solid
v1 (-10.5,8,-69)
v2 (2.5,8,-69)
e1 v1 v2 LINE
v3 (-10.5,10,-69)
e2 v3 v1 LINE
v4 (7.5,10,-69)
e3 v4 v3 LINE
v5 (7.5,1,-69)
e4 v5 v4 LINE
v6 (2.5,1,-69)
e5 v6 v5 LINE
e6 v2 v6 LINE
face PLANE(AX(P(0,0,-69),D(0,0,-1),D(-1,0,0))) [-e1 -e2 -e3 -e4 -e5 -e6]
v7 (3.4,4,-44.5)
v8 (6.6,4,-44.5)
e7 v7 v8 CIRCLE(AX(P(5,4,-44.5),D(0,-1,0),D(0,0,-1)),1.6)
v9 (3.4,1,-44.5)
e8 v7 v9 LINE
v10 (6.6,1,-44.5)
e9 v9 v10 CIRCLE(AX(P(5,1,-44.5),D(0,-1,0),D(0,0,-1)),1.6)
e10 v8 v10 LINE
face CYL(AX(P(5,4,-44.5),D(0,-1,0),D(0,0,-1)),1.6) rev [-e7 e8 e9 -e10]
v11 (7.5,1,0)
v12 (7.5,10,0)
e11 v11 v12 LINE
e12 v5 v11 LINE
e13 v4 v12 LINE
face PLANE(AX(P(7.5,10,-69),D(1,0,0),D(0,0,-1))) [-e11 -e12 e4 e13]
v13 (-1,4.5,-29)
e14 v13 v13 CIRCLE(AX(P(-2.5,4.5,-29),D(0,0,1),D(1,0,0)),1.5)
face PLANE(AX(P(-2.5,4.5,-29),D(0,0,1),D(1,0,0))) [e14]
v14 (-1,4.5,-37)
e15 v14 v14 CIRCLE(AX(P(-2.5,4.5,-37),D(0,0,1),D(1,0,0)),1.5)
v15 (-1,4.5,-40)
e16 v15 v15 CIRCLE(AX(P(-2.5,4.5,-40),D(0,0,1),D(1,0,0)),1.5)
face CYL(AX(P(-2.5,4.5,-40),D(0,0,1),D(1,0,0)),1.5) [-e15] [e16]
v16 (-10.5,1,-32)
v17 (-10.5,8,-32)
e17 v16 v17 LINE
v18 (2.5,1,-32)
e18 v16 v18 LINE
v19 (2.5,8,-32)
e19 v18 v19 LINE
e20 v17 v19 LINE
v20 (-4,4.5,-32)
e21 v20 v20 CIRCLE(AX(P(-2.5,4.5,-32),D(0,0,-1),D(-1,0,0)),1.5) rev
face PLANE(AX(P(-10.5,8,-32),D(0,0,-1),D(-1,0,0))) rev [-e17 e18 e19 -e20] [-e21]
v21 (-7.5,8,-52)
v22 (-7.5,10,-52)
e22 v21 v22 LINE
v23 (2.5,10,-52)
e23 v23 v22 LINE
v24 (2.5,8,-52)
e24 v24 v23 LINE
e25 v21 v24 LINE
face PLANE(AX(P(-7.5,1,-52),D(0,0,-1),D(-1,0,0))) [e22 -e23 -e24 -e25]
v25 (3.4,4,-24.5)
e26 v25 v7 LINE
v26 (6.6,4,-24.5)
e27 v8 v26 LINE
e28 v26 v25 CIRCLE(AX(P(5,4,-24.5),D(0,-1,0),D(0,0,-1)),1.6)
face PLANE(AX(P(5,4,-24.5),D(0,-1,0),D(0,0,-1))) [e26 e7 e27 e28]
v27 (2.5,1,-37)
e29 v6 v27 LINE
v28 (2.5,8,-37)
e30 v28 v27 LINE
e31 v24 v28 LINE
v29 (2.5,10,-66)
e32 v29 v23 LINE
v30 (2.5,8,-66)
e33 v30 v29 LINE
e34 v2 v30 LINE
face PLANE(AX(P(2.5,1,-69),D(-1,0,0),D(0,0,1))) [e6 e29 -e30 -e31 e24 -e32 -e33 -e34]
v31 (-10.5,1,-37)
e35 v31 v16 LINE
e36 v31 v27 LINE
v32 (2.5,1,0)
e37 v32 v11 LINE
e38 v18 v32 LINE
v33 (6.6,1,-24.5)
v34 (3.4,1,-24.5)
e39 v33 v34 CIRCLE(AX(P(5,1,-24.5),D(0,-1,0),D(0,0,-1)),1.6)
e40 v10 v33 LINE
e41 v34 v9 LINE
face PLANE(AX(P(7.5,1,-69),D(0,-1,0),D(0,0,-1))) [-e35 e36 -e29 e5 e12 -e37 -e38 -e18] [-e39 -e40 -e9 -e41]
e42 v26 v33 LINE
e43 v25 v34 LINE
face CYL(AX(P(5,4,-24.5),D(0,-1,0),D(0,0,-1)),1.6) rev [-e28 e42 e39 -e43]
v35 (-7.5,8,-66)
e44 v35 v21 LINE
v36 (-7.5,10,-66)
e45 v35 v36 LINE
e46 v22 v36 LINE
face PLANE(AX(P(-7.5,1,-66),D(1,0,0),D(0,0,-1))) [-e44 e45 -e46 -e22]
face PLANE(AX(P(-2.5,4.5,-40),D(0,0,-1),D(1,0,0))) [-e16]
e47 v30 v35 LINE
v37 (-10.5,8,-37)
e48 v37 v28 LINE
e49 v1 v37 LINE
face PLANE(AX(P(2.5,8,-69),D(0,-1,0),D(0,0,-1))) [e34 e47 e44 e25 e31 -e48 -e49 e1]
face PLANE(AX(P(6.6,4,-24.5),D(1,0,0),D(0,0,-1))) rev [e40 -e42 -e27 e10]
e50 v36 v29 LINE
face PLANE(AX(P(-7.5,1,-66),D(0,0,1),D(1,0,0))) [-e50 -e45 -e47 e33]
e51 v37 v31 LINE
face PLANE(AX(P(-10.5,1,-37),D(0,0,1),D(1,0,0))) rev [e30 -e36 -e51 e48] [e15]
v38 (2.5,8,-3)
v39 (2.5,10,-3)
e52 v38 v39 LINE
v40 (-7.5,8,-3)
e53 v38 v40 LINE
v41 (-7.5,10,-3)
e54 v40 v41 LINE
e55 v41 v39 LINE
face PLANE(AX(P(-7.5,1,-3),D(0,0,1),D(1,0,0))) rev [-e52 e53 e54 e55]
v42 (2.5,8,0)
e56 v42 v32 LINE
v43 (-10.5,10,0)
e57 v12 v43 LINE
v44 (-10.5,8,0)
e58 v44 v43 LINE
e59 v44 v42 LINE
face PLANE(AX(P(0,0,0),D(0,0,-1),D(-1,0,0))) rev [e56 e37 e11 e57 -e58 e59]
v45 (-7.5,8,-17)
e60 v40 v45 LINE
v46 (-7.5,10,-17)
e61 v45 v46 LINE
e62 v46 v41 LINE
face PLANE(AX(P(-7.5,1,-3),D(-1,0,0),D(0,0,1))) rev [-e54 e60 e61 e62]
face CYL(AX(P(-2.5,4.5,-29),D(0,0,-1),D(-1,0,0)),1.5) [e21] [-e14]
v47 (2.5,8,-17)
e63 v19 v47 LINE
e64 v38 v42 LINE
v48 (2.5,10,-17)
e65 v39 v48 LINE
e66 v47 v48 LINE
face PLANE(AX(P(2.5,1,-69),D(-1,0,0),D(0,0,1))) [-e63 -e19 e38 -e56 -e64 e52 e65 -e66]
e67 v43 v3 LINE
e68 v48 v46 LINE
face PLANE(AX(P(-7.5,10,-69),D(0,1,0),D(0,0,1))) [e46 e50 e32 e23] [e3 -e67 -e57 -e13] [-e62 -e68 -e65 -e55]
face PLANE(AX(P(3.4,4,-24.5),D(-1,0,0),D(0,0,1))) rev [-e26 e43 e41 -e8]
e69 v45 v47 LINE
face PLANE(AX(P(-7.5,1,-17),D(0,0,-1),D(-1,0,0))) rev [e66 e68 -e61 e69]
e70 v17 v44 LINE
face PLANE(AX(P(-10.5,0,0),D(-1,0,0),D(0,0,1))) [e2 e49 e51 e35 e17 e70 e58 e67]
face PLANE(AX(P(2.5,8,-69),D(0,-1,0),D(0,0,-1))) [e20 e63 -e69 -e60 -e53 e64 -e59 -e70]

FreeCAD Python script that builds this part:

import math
import FreeCAD as App
import Part
import Sketcher
Q = App.Units.Quantity

doc = App.newDocument("Part")
params = doc.addObject("Spreadsheet::Sheet", "Params")
for row, (alias, value) in enumerate([
    ("sketch1_width", "5 mm"),
    ("sketch1_width2", "15 mm"),
    ("sketch1_height", "7 mm"),
    ("sketch1_height2", "9 mm"),
    ("pad1_length", "69 mm"),
    ("sketch2_width", "2 mm"),
    ("sketch2_height", "69 mm"),
    ("pad2_length", "3 mm"),
    ("sketch3_width", "7 mm"),
    ("sketch3_height", "5 mm"),
    ("pad3_length", "13 mm"),
    ("sketch4_diameter", "3 mm"),
    ("pad4_length", "3 mm"),
    ("sketch5_width", "10 mm"),
    ("sketch5_height", "14 mm"),
    ("sketch6_radius", "1.6 mm"),
    ("sketch6_height", "20 mm"),
    ("pocket2_length", "3 mm"),
], start=1):
    params.set(f"A{row}", alias)
    params.set(f"B{row}", "=" + value)
    params.setAlias(f"B{row}", alias)

body = doc.addObject("PartDesign::Body", "Body")

# Sketch on XY plane
sketch1 = body.newObject("Sketcher::SketchObject", "Sketch")
sketch1.AttachmentSupport = (doc.getObject("XY_Plane"), [""])
sketch1.MapMode = "FlatFace"
sketch1.addGeometry([
    Part.LineSegment(App.Vector(2.5, 8, 0), App.Vector(2.5, 1, 0)),  # 0
    Part.LineSegment(App.Vector(2.5, 1, 0), App.Vector(7.5, 1, 0)),  # 1
    Part.LineSegment(App.Vector(7.5, 1, 0), App.Vector(7.5, 10, 0)),  # 2
    Part.LineSegment(App.Vector(7.5, 10, 0), App.Vector(-7.5, 10, 0)),  # 3
    Part.LineSegment(App.Vector(-7.5, 10, 0), App.Vector(-7.5, 8, 0)),  # 4
    Part.LineSegment(App.Vector(-7.5, 8, 0), App.Vector(2.5, 8, 0)),  # 5
], False)
sketch1.addConstraint([
    Sketcher.Constraint("Coincident", 0, 2, 1, 1),
    Sketcher.Constraint("Coincident", 1, 2, 2, 1),
    Sketcher.Constraint("Coincident", 2, 2, 3, 1),
    Sketcher.Constraint("Coincident", 3, 2, 4, 1),
    Sketcher.Constraint("Coincident", 4, 2, 5, 1),
    Sketcher.Constraint("Coincident", 5, 2, 0, 1),
    Sketcher.Constraint("Vertical", 0),
    Sketcher.Constraint("Horizontal", 1),
    Sketcher.Constraint("Vertical", 2),
    Sketcher.Constraint("Horizontal", 3),
    Sketcher.Constraint("Vertical", 4),
    Sketcher.Constraint("Horizontal", 5),
    Sketcher.Constraint("DistanceX", 1, 1, 1, 2, Q("5 mm")),
    Sketcher.Constraint("DistanceX", 3, 2, 3, 1, Q("15 mm")),
    Sketcher.Constraint("DistanceY", 0, 2, 0, 1, Q("7 mm")),
    Sketcher.Constraint("DistanceY", 2, 1, 2, 2, Q("9 mm")),
    Sketcher.Constraint("DistanceY", -1, 1, 0, 2, Q("1 mm")),
    Sketcher.Constraint("DistanceX", -1, 1, 0, 2, Q("2.5 mm")),
])
sketch1.setExpression("Constraints[12]", "Params.sketch1_width")
sketch1.setExpression("Constraints[13]", "Params.sketch1_width2")
sketch1.setExpression("Constraints[14]", "Params.sketch1_height")
sketch1.setExpression("Constraints[15]", "Params.sketch1_height2")
pad1 = body.newObject("PartDesign::Pad", "Pad")
pad1.Profile = sketch1
pad1.setExpression("Length", "Params.pad1_length")
pad1.Reversed = True

# Sketch on YZ plane
sketch2 = body.newObject("Sketcher::SketchObject", "Sketch001")
sketch2.AttachmentSupport = (doc.getObject("YZ_Plane"), [""])
sketch2.MapMode = "FlatFace"
sketch2.AttachmentOffset = App.Placement(App.Vector(0, 0, -7.5), App.Rotation())
sketch2.addGeometry([
    Part.LineSegment(App.Vector(10, -69, 0), App.Vector(8, -69, 0)),
    Part.LineSegment(App.Vector(8, -69, 0), App.Vector(8, 0, 0)),
    Part.LineSegment(App.Vector(8, 0, 0), App.Vector(10, 0, 0)),
    Part.LineSegment(App.Vector(10, 0, 0), App.Vector(10, -69, 0)),
], False)
sketch2.addConstraint([
    Sketcher.Constraint("Coincident", 0, 2, 1, 1),
    Sketcher.Constraint("Coincident", 1, 2, 2, 1),
    Sketcher.Constraint("Coincident", 2, 2, 3, 1),
    Sketcher.Constraint("Coincident", 3, 2, 0, 1),
    Sketcher.Constraint("Horizontal", 0),
    Sketcher.Constraint("Vertical", 1),
    Sketcher.Constraint("Horizontal", 2),
    Sketcher.Constraint("Vertical", 3),
    Sketcher.Constraint("PointOnObject", 1, 2, -1),
    Sketcher.Constraint("DistanceX", 0, 2, 0, 1, Q("2 mm")),
    Sketcher.Constraint("DistanceY", 1, 1, 1, 2, Q("69 mm")),
    Sketcher.Constraint("DistanceX", -1, 1, 0, 2, Q("8 mm")),
])
sketch2.setExpression("Constraints[9]", "Params.sketch2_width")
sketch2.setExpression("Constraints[10]", "Params.sketch2_height")
pad2 = body.newObject("PartDesign::Pad", "Pad001")
pad2.Profile = sketch2
pad2.setExpression("Length", "Params.pad2_length")
pad2.Reversed = True

# Sketch on YZ plane
sketch3 = body.newObject("Sketcher::SketchObject", "Sketch002")
sketch3.AttachmentSupport = (doc.getObject("YZ_Plane"), [""])
sketch3.MapMode = "FlatFace"
sketch3.AttachmentOffset = App.Placement(App.Vector(0, 0, 2.5), App.Rotation())
sketch3.addGeometry([
    Part.LineSegment(App.Vector(8, -37, 0), App.Vector(1, -37, 0)),
    Part.LineSegment(App.Vector(1, -37, 0), App.Vector(1, -32, 0)),
    Part.LineSegment(App.Vector(1, -32, 0), App.Vector(8, -32, 0)),
    Part.LineSegment(App.Vector(8, -32, 0), App.Vector(8, -37, 0)),
], False)
sketch3.addConstraint([
    Sketcher.Constraint("Coincident", 0, 2, 1, 1),
    Sketcher.Constraint("Coincident", 1, 2, 2, 1),
    Sketcher.Constraint("Coincident", 2, 2, 3, 1),
    Sketcher.Constraint("Coincident", 3, 2, 0, 1),
    Sketcher.Constraint("Horizontal", 0),
    Sketcher.Constraint("Vertical", 1),
    Sketcher.Constraint("Horizontal", 2),
    Sketcher.Constraint("Vertical", 3),
    Sketcher.Constraint("DistanceX", 0, 2, 0, 1, Q("7 mm")),
    Sketcher.Constraint("DistanceY", 1, 1, 1, 2, Q("5 mm")),
    Sketcher.Constraint("DistanceX", -1, 1, 0, 2, Q("1 mm")),
    Sketcher.Constraint("DistanceY", 0, 2, -1, 1, Q("37 mm")),
])
sketch3.setExpression("Constraints[8]", "Params.sketch3_width")
sketch3.setExpression("Constraints[9]", "Params.sketch3_height")
pad3 = body.newObject("PartDesign::Pad", "Pad002")
pad3.Profile = sketch3
pad3.setExpression("Length", "Params.pad3_length")
pad3.Reversed = True

# Sketch on XY plane
sketch4 = body.newObject("Sketcher::SketchObject", "Sketch003")
sketch4.AttachmentSupport = (doc.getObject("XY_Plane"), [""])
sketch4.MapMode = "FlatFace"
sketch4.AttachmentOffset = App.Placement(App.Vector(0, 0, -32), App.Rotation())
sketch4.addGeometry(Part.Circle(App.Vector(-2.5, 4.5, 0), App.Vector(0, 0, 1), 1.5), False)
sketch4.addConstraint([
    Sketcher.Constraint("Diameter", 0, Q("3 mm")),
    Sketcher.Constraint("DistanceX", 0, 3, -1, 1, Q("2.5 mm")),
    Sketcher.Constraint("DistanceY", -1, 1, 0, 3, Q("4.5 mm")),
])
sketch4.setExpression("Constraints[0]", "Params.sketch4_diameter")
pad4 = body.newObject("PartDesign::Pad", "Pad003")
pad4.Profile = sketch4
pad4.setExpression("Length", "Params.pad4_length")

# Sketch on XZ plane
sketch5 = body.newObject("Sketcher::SketchObject", "Sketch004")
sketch5.AttachmentSupport = (doc.getObject("XZ_Plane"), [""])
sketch5.MapMode = "FlatFace"
sketch5.AttachmentOffset = App.Placement(App.Vector(0, 0, -10), App.Rotation())
sketch5.addGeometry([
    Part.LineSegment(App.Vector(-7.5, -17, 0), App.Vector(-7.5, -3, 0)),
    Part.LineSegment(App.Vector(-7.5, -3, 0), App.Vector(2.5, -3, 0)),
    Part.LineSegment(App.Vector(2.5, -3, 0), App.Vector(2.5, -17, 0)),
    Part.LineSegment(App.Vector(2.5, -17, 0), App.Vector(-7.5, -17, 0)),
], False)
sketch5.addConstraint([
    Sketcher.Constraint("Coincident", 0, 2, 1, 1),
    Sketcher.Constraint("Coincident", 1, 2, 2, 1),
    Sketcher.Constraint("Coincident", 2, 2, 3, 1),
    Sketcher.Constraint("Coincident", 3, 2, 0, 1),
    Sketcher.Constraint("Vertical", 0),
    Sketcher.Constraint("Horizontal", 1),
    Sketcher.Constraint("Vertical", 2),
    Sketcher.Constraint("Horizontal", 3),
    Sketcher.Constraint("DistanceX", 1, 1, 1, 2, Q("10 mm")),
    Sketcher.Constraint("DistanceY", 0, 1, 0, 2, Q("14 mm")),
    Sketcher.Constraint("DistanceY", 0, 2, -1, 1, Q("3 mm")),
    Sketcher.Constraint("DistanceX", 0, 2, -1, 1, Q("7.5 mm")),
])
sketch5.setExpression("Constraints[8]", "Params.sketch5_width")
sketch5.setExpression("Constraints[9]", "Params.sketch5_height")
pocket1 = body.newObject("PartDesign::Pocket", "Pocket")
pocket1.Profile = sketch5
pocket1.Type = "ThroughAll"
pocket1.Reversed = True
doc.recompute()

datumplane = body.newObject("PartDesign::Plane", "DatumPlane")
datumplane.AttachmentSupport = (doc.getObject("XY_Plane"), [""])
datumplane.MapMode = "FlatFace"
datumplane.AttachmentOffset = App.Placement(App.Vector(0, 0, -34.5), App.Rotation())
mirrored = body.newObject("PartDesign::Mirrored", "Mirrored")
mirrored.Originals = [pad4, pocket1]
mirrored.MirrorPlane = (datumplane, [""])
body.Tip = mirrored

# Sketch on XZ plane
sketch6 = body.newObject("Sketcher::SketchObject", "Sketch005")
sketch6.AttachmentSupport = (doc.getObject("XZ_Plane"), [""])
sketch6.MapMode = "FlatFace"
sketch6.AttachmentOffset = App.Placement(App.Vector(0, 0, -1), App.Rotation())
sketch6.addGeometry([
    Part.LineSegment(App.Vector(6.6, -44.5, 0), App.Vector(6.6, -24.5, 0)),
    Part.ArcOfCircle(Part.Circle(App.Vector(5, -24.5, 0), App.Vector(0, 0, 1), 1.6), math.radians(0), math.radians(180)),
    Part.LineSegment(App.Vector(3.4, -24.5, 0), App.Vector(3.4, -44.5, 0)),
    Part.ArcOfCircle(Part.Circle(App.Vector(5, -44.5, 0), App.Vector(0, 0, 1), 1.6), math.radians(180), math.radians(360)),
], False)
sketch6.addConstraint([
    Sketcher.Constraint("Tangent", 0, 2, 1, 1),
    Sketcher.Constraint("Tangent", 1, 2, 2, 1),
    Sketcher.Constraint("Tangent", 2, 2, 3, 1),
    Sketcher.Constraint("Tangent", 3, 2, 0, 1),
    Sketcher.Constraint("Vertical", 0),
    Sketcher.Constraint("Vertical", 2),
    Sketcher.Constraint("Radius", 1, Q("1.6 mm")),
    Sketcher.Constraint("DistanceY", 0, 1, 0, 2, Q("20 mm")),
    Sketcher.Constraint("DistanceX", -1, 1, 1, 3, Q("5 mm")),
    Sketcher.Constraint("DistanceY", 1, 3, -1, 1, Q("24.5 mm")),
])
sketch6.setExpression("Constraints[6]", "Params.sketch6_radius")
sketch6.setExpression("Constraints[7]", "Params.sketch6_height")
pocket2 = body.newObject("PartDesign::Pocket", "Pocket001")
pocket2.Profile = sketch6
pocket2.setExpression("Length", "Params.pocket2_length")

doc.recompute()
